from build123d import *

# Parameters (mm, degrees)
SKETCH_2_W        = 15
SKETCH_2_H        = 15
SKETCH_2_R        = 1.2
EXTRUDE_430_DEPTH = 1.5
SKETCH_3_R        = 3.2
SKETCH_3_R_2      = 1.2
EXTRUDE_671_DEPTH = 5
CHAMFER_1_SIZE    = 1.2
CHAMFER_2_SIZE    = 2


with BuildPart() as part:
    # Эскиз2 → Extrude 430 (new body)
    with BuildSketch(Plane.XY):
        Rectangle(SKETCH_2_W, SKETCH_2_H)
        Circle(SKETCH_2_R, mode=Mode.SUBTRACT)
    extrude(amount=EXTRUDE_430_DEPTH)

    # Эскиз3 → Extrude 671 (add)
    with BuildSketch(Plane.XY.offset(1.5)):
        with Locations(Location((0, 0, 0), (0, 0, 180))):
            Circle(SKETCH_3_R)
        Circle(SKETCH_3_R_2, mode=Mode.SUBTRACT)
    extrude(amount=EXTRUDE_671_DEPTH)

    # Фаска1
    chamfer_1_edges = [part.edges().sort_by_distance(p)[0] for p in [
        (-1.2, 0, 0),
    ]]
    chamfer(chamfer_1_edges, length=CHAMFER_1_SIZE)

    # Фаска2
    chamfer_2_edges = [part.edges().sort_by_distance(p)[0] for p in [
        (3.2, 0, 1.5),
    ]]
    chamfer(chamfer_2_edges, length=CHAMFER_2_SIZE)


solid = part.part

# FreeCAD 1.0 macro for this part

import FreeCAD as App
import Part
import Sketcher

V = App.Vector


def edges_at(feature, points):
    """Names of the edges that pass closest to the given points."""
    edges = feature.Shape.Edges
    near = lambda p: min(range(len(edges)), key=lambda i: edges[i].distToShape(Part.Vertex(*p))[0])
    return sorted({f"Edge{near(p) + 1}" for p in points})


def add_polygon(sketch, points):
    """Adds a closed chain of lines whose ends are joined by coincident constraints."""
    first, n = sketch.GeometryCount, len(points)
    for a, b in zip(points, points[1:] + points[:1]):
        sketch.addGeometry(Part.LineSegment(App.Vector(*a, 0), App.Vector(*b, 0)), False)
    for i in range(n):
        sketch.addConstraint(Sketcher.Constraint("Coincident", first + i, 2, first + (i + 1) % n, 1))

doc = App.newDocument("Part")
body = doc.addObject("PartDesign::Body", "Body")

# Sketch on XY plane
sketch1 = body.newObject("Sketcher::SketchObject", "Sketch")
sketch1.AttachmentSupport = (doc.getObject("XY_Plane"), [""])
sketch1.MapMode = "FlatFace"
add_polygon(sketch1, [(-7.5, 7.5), (-7.5, -7.5), (7.5, -7.5), (7.5, 7.5)])  # lines 0-3
sketch1.addGeometry(Part.Circle(V(0, 0, 0), V(0, 0, 1), 1.2), False)  # 4
sketch1.addConstraint(Sketcher.Constraint("Vertical", 0))
sketch1.addConstraint(Sketcher.Constraint("Horizontal", 1))
sketch1.addConstraint(Sketcher.Constraint("Vertical", 2))
sketch1.addConstraint(Sketcher.Constraint("Horizontal", 3))
sketch1.addConstraint(Sketcher.Constraint("Coincident", 4, 3, -1, 1))
sketch1.addConstraint(Sketcher.Constraint("Symmetric", 0, 2, 2, 2, -1, 1))
sketch1.addConstraint(Sketcher.Constraint("Equal", 3, 0))
sketch1.addConstraint(Sketcher.Constraint("Diameter", 4, 2.4))
sketch1.addConstraint(Sketcher.Constraint("DistanceX", 1, 1, 1, 2, 15.0))
pad1 = body.newObject("PartDesign::Pad", "Pad")
pad1.Profile = sketch1
pad1.Length = 1.5

# Sketch on XY plane
sketch2 = body.newObject("Sketcher::SketchObject", "Sketch001")
sketch2.AttachmentSupport = (doc.getObject("XY_Plane"), [""])
sketch2.MapMode = "FlatFace"
sketch2.AttachmentOffset = App.Placement(V(0, 0, 1.5), App.Rotation())
sketch2.addGeometry(Part.Circle(V(0, 0, 0), V(0, 0, 1), 3.2), False)
sketch2.addGeometry(Part.Circle(V(0, 0, 0), V(0, 0, 1), 1.2), False)
sketch2.addConstraint(Sketcher.Constraint("Coincident", 0, 3, -1, 1))
sketch2.addConstraint(Sketcher.Constraint("Coincident", 1, 3, -1, 1))
sketch2.addConstraint(Sketcher.Constraint("Diameter", 0, 6.4))
sketch2.addConstraint(Sketcher.Constraint("Diameter", 1, 2.4))
pad2 = body.newObject("PartDesign::Pad", "Pad001")
pad2.Profile = sketch2
pad2.Length = 5
doc.recompute()

chamfer = body.newObject("PartDesign::Chamfer", "Chamfer")
chamfer.Base = (pad2, edges_at(pad2, [(-1.2, 0, 0)]))
chamfer.Size = 1.2
doc.recompute()

chamfer2 = body.newObject("PartDesign::Chamfer", "Chamfer001")
chamfer2.Base = (chamfer, edges_at(chamfer, [(3.2, 0, 1.5)]))
chamfer2.Size = 2

doc.recompute()
